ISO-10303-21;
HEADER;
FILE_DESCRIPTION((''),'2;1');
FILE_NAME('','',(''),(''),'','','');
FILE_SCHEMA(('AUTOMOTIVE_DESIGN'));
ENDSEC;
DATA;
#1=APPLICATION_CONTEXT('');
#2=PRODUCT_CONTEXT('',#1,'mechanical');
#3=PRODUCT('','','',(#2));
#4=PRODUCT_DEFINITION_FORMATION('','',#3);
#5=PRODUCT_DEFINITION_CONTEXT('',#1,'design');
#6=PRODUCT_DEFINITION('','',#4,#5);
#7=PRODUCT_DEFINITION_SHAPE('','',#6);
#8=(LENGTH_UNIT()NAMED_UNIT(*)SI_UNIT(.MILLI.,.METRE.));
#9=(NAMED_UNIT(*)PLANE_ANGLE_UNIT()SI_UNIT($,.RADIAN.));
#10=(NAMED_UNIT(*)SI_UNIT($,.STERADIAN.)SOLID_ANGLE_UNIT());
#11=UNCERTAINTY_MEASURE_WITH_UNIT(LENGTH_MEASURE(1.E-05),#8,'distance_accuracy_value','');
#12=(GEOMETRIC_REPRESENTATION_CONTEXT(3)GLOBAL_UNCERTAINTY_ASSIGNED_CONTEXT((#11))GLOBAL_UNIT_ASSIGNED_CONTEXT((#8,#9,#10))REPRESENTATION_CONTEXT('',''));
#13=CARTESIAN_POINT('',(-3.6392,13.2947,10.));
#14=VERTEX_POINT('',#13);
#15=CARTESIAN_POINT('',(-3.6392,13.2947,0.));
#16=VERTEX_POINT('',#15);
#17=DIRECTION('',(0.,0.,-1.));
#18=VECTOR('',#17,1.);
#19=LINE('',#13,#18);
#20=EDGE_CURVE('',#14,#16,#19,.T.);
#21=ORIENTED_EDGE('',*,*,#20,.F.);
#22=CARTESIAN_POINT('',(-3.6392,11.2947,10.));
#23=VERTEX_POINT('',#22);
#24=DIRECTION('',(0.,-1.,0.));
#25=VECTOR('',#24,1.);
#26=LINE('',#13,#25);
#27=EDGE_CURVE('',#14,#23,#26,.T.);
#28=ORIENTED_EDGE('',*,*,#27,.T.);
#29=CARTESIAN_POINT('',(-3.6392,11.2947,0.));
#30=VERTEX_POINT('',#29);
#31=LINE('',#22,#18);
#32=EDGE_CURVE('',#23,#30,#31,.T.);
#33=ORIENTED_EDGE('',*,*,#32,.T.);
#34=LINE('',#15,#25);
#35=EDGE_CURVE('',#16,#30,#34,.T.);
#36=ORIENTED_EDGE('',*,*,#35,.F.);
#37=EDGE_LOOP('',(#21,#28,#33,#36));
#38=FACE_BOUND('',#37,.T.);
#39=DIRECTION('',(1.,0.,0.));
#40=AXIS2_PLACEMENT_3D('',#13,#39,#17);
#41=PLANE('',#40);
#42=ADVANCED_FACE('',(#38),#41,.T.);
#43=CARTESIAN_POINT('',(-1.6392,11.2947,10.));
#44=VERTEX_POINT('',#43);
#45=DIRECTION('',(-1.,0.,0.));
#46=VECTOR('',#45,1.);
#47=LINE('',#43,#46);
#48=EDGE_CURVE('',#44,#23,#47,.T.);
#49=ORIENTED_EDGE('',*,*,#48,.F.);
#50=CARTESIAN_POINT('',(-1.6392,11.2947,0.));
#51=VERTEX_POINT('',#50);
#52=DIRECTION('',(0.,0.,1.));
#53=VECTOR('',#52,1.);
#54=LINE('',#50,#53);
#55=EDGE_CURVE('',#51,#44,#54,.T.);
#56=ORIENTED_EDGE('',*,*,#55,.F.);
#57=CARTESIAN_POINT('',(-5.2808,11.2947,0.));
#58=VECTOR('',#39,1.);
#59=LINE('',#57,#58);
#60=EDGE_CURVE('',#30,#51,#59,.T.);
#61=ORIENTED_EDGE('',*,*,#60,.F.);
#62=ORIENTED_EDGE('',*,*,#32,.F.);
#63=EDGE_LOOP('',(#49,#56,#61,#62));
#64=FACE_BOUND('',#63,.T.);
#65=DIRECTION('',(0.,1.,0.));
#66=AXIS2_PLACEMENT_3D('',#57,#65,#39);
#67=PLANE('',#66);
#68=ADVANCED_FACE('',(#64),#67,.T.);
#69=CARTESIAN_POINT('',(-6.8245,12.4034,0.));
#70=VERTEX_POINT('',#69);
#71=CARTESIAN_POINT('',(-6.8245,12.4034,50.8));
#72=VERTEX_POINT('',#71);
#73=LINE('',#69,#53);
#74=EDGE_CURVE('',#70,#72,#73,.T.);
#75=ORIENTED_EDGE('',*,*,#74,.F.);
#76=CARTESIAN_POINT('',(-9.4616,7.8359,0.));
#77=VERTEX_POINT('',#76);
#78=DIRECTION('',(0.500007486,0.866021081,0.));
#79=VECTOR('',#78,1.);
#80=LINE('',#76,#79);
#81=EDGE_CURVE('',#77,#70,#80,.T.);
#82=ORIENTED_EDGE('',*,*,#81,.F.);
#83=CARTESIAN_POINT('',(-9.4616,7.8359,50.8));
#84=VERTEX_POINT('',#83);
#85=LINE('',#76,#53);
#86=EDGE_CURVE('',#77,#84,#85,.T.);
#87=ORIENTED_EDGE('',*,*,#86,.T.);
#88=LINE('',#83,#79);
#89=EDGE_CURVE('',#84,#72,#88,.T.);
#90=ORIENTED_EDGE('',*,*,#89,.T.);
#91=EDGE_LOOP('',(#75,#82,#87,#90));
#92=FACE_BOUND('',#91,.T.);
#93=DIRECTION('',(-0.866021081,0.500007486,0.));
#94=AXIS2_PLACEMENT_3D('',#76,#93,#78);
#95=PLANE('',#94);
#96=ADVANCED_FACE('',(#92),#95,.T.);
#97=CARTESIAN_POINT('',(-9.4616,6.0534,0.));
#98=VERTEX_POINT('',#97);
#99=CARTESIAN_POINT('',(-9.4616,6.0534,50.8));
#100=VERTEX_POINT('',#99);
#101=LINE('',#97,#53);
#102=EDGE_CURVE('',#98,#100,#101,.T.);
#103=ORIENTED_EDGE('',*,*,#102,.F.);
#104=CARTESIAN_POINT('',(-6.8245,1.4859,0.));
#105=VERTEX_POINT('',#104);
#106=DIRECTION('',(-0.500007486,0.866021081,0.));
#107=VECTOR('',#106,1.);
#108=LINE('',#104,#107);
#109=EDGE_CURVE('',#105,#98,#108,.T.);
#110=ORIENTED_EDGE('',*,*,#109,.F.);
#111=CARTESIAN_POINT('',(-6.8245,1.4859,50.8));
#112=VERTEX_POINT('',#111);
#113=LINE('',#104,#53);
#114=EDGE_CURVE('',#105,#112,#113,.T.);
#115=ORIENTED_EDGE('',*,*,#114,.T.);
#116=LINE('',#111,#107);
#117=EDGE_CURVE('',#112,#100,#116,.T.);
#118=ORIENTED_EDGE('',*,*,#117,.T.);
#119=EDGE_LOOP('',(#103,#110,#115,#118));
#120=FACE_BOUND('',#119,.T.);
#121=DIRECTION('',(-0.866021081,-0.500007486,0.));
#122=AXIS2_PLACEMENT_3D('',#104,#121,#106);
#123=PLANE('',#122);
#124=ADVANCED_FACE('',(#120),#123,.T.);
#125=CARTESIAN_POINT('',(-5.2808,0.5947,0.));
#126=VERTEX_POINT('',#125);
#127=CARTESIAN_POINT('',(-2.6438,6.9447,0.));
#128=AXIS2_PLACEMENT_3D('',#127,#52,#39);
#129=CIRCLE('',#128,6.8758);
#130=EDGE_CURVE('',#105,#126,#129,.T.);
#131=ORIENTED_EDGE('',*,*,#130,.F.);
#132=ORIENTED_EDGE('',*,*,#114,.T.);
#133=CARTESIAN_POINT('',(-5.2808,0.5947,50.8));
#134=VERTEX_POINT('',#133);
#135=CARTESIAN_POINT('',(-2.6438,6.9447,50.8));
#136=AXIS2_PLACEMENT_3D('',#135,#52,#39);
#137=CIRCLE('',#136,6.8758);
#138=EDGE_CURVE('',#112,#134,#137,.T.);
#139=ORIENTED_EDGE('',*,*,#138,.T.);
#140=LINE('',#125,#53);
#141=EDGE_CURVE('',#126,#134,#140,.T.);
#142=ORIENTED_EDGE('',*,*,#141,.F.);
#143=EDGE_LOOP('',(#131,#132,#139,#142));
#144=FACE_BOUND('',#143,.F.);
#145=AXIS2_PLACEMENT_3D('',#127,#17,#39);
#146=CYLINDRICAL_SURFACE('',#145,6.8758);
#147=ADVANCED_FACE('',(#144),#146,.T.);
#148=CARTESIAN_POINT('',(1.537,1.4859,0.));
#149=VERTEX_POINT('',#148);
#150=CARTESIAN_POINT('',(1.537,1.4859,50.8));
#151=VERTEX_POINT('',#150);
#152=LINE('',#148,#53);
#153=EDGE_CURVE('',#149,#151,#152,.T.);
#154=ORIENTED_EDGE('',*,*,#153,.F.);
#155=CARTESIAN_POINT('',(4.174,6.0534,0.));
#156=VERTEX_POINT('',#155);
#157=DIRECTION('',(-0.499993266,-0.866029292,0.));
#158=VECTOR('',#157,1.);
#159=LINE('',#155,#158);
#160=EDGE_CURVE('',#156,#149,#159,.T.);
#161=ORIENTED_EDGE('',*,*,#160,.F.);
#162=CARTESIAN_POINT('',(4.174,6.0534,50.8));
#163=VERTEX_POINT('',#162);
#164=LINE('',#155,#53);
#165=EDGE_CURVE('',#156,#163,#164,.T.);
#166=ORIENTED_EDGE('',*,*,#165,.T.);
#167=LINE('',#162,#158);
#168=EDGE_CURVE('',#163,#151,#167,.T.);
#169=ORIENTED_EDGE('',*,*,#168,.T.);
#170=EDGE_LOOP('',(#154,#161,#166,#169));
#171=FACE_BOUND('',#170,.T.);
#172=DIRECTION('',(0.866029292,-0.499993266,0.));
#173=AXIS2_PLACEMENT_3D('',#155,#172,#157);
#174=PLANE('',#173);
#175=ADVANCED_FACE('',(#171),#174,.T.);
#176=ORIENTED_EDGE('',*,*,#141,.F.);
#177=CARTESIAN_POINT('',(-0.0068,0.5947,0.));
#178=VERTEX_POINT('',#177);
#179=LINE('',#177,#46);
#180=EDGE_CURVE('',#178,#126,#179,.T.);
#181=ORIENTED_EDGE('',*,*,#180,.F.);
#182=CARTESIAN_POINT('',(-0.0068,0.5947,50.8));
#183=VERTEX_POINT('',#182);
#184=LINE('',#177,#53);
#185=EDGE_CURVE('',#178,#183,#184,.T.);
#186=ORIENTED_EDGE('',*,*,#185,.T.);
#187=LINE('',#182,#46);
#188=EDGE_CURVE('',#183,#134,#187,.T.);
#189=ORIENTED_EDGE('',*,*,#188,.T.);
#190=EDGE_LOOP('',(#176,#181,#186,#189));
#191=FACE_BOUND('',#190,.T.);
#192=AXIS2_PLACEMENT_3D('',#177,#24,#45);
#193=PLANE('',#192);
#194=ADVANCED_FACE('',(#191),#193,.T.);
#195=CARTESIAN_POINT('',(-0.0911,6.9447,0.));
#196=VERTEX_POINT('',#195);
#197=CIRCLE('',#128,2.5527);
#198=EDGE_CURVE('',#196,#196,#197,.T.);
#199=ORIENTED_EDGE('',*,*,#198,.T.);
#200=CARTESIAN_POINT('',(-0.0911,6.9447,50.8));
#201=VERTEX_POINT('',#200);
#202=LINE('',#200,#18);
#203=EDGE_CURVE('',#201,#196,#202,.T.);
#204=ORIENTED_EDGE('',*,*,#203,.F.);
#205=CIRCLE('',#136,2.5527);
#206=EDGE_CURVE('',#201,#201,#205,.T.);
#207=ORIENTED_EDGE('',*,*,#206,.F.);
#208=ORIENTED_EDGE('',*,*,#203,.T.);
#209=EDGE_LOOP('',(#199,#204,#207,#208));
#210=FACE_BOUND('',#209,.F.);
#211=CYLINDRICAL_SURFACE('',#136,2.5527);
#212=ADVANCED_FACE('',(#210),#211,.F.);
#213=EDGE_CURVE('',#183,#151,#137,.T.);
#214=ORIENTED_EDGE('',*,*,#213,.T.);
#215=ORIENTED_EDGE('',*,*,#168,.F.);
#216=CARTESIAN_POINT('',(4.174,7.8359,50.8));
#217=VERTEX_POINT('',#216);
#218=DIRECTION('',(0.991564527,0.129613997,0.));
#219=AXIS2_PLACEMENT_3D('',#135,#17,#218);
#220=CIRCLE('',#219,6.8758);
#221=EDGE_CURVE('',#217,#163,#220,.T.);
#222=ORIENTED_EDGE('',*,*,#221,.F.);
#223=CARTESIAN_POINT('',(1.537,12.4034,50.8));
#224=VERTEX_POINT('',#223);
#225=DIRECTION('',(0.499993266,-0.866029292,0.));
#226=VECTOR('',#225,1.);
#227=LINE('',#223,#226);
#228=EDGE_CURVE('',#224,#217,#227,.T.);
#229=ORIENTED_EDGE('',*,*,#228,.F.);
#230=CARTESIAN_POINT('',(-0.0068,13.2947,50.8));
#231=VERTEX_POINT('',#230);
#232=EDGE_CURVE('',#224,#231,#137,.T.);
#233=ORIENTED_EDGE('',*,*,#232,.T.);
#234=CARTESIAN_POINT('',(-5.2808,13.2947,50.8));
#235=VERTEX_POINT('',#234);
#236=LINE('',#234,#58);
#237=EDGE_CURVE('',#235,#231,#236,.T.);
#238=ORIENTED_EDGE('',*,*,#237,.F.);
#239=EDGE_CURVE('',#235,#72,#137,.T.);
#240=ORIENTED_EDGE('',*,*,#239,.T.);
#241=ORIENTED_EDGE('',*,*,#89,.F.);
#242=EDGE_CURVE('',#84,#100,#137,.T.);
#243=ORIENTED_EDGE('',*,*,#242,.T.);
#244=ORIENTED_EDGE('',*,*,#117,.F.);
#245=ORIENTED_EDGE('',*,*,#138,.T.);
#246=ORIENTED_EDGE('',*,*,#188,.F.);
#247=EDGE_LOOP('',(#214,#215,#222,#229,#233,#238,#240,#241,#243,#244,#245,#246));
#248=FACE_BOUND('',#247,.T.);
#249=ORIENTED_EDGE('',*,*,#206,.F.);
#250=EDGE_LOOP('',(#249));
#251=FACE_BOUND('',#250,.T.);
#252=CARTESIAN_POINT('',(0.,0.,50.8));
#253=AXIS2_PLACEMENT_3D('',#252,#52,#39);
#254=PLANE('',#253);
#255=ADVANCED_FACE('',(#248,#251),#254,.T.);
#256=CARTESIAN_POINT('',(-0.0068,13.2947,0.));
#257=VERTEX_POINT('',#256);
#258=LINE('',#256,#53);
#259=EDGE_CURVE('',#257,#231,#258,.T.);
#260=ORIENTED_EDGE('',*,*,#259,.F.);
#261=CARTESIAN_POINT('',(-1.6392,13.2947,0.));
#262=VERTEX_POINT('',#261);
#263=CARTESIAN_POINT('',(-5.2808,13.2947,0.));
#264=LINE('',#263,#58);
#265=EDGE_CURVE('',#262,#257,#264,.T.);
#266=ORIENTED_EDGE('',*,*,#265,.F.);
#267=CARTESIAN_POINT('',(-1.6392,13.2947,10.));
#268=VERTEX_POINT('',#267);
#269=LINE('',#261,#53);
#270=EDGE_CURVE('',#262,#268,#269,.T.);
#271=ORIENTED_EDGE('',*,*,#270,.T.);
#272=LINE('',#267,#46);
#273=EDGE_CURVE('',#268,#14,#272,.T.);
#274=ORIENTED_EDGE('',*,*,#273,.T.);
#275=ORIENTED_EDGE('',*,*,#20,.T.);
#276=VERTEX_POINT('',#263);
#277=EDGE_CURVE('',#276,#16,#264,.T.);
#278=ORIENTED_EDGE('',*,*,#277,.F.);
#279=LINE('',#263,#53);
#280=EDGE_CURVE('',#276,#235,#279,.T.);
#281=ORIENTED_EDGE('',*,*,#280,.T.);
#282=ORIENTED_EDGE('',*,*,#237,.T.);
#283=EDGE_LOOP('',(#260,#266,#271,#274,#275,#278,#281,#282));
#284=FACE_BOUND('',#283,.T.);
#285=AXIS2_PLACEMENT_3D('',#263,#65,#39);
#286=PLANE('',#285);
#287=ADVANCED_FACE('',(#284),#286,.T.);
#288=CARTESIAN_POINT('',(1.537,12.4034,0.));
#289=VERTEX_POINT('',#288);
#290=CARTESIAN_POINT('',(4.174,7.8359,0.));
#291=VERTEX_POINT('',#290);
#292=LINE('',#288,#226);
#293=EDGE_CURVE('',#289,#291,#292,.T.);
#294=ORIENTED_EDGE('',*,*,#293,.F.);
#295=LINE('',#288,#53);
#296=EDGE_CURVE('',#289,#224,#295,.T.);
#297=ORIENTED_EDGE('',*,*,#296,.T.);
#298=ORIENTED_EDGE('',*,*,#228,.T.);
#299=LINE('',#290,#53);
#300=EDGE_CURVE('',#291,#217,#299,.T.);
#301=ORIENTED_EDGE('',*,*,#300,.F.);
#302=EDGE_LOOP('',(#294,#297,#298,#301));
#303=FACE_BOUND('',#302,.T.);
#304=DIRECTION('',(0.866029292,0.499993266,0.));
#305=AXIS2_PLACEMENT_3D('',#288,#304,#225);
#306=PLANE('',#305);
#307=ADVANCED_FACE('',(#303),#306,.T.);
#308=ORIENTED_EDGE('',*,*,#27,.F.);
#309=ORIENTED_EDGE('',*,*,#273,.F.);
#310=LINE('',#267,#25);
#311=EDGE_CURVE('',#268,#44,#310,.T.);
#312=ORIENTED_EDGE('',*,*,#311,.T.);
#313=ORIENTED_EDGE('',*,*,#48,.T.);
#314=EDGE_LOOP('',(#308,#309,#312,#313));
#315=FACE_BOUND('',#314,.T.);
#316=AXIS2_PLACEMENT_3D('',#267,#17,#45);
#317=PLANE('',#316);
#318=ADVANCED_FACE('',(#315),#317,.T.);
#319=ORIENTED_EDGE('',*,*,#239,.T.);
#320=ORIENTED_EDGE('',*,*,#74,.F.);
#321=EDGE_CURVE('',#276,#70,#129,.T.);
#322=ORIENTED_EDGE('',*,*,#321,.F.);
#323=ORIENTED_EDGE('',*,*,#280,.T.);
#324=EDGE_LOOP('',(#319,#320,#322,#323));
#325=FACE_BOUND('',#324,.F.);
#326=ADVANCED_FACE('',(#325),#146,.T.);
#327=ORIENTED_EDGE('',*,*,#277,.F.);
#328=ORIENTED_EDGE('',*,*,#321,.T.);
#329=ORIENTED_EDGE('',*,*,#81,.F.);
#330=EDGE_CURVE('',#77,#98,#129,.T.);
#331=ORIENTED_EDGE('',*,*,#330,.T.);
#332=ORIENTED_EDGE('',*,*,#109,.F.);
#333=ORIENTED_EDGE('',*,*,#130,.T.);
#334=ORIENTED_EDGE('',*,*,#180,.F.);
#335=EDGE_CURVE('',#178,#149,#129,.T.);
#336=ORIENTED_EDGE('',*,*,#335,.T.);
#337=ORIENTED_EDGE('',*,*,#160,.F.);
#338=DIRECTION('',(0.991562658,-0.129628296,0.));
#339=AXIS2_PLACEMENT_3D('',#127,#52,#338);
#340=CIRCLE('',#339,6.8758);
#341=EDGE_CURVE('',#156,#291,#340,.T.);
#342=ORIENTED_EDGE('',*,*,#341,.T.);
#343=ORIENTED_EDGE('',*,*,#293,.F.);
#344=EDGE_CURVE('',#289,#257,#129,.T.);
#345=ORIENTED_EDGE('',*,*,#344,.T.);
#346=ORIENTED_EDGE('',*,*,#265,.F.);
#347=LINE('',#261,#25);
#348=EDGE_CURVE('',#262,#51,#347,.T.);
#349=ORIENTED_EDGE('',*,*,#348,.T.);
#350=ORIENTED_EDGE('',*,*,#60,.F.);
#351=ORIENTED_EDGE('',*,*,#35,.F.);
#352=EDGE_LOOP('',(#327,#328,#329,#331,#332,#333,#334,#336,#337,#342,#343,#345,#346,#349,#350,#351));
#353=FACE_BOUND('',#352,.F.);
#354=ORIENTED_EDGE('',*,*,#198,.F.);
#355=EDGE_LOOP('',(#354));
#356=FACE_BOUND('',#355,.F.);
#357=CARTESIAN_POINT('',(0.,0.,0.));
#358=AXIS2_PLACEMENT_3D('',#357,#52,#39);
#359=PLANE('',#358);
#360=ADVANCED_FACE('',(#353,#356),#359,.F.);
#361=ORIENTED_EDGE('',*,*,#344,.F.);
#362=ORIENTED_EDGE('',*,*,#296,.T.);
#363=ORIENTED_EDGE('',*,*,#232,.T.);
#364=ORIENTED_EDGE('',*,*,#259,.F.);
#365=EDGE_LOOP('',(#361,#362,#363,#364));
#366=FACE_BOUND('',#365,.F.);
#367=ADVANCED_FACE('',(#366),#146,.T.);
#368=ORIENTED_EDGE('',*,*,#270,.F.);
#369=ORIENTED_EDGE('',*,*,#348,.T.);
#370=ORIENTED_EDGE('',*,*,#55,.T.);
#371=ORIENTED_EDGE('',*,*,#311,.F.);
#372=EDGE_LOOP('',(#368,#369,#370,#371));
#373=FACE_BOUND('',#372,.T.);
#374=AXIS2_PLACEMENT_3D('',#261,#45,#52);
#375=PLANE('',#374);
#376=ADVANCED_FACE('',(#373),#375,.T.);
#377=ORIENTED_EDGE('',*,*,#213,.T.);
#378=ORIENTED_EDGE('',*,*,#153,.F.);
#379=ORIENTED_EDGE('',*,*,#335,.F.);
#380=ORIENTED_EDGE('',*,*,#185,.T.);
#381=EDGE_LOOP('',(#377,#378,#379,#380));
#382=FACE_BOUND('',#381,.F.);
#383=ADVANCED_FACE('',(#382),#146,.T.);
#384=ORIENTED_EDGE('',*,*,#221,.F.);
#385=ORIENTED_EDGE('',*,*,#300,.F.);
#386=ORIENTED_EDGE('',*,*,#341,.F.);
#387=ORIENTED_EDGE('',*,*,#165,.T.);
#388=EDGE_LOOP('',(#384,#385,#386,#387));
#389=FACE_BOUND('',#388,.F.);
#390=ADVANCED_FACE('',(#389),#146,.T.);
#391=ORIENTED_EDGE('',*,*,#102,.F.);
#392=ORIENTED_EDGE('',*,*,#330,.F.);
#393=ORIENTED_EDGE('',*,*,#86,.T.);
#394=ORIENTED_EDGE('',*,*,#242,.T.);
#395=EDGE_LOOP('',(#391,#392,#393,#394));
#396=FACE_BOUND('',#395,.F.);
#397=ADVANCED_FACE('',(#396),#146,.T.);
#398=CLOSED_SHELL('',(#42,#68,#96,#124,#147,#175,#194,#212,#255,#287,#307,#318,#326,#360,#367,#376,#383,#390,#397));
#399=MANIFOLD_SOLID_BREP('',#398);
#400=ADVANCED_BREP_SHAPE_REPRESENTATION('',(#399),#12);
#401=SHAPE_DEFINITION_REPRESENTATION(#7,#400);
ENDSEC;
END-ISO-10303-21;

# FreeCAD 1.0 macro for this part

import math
import FreeCAD as App
import Part
import Sketcher
from FreeCAD import Vector
Q = App.Units.Quantity

doc = App.newDocument("Part")
body = doc.addObject("PartDesign::Body", "Body")

sketch1 = doc.addObject("Sketcher::SketchObject", "Sketch")
body.addObject(sketch1)
sketch1.AttachmentSupport = (doc.XY_Plane, [""])
sketch1.MapMode = "FlatFace"
sketch1.addGeometry([
    Part.ArcOfCircle(Part.Circle(Vector(-2.6, 6.9, 0), Vector(0, 0, 1), 6.9), math.radians(-7.45), math.radians(7.45)),
    Part.LineSegment(Vector(4.2, 7.8, 0), Vector(1.5, 12.4, 0)),
    Part.ArcOfCircle(Part.Circle(Vector(-2.6, 6.9, 0), Vector(0, 0, 1), 6.9), math.radians(52.55), math.radians(67.45)),
    Part.LineSegment(Vector(0, 13.3, 0), Vector(-5.3, 13.3, 0)),
    Part.ArcOfCircle(Part.Circle(Vector(-2.6, 6.9, 0), Vector(0, 0, 1), 6.9), math.radians(112.55), math.radians(127.45)),
    Part.LineSegment(Vector(-6.8, 12.4, 0), Vector(-9.5, 7.8, 0)),
    Part.ArcOfCircle(Part.Circle(Vector(-2.6, 6.9, 0), Vector(0, 0, 1), 6.9), math.radians(172.55), math.radians(187.45)),
    Part.LineSegment(Vector(-9.5, 6.1, 0), Vector(-6.8, 1.5, 0)),
    Part.ArcOfCircle(Part.Circle(Vector(-2.6, 6.9, 0), Vector(0, 0, 1), 6.9), math.radians(-127.45), math.radians(-112.55)),
    Part.LineSegment(Vector(-5.3, 0.6, 0), Vector(0, 0.6, 0)),
    Part.ArcOfCircle(Part.Circle(Vector(-2.6, 6.9, 0), Vector(0, 0, 1), 6.9), math.radians(-67.45), math.radians(-52.55)),
    Part.LineSegment(Vector(1.5, 1.5, 0), Vector(4.2, 6.1, 0)),
], False)
sketch1.addConstraint([
    Sketcher.Constraint("Coincident", 0, 2, 1, 1),
    Sketcher.Constraint("Coincident", 1, 2, 2, 1),
    Sketcher.Constraint("Coincident", 2, 2, 3, 1),
    Sketcher.Constraint("Coincident", 3, 2, 4, 1),
    Sketcher.Constraint("Coincident", 4, 2, 5, 1),
    Sketcher.Constraint("Coincident", 5, 2, 6, 1),
    Sketcher.Constraint("Coincident", 6, 2, 7, 1),
    Sketcher.Constraint("Coincident", 7, 2, 8, 1),
    Sketcher.Constraint("Coincident", 8, 2, 9, 1),
    Sketcher.Constraint("Coincident", 9, 2, 10, 1),
    Sketcher.Constraint("Coincident", 10, 2, 11, 1),
    Sketcher.Constraint("Coincident", 11, 2, 0, 1),
    Sketcher.Constraint("Horizontal", 3),
    Sketcher.Constraint("Horizontal", 9),
    Sketcher.Constraint("Coincident", 2, 3, 0, 3),
    Sketcher.Constraint("Coincident", 4, 3, 0, 3),
    Sketcher.Constraint("Coincident", 6, 3, 0, 3),
    Sketcher.Constraint("Coincident", 8, 3, 0, 3),
    Sketcher.Constraint("Coincident", 10, 3, 0, 3),
    Sketcher.Constraint("Equal", 0, 2),
    Sketcher.Constraint("Equal", 2, 4),
    Sketcher.Constraint("Equal", 4, 6),
    Sketcher.Constraint("Equal", 6, 8),
    Sketcher.Constraint("Equal", 8, 10),
    Sketcher.Constraint("Parallel", 1, 7),
    Sketcher.Constraint("Parallel", 5, 11),
    Sketcher.Constraint("Horizontal", 1, 2, 4, 2),
    Sketcher.Constraint("Horizontal", 0, 2, 5, 2),
    Sketcher.Constraint("Horizontal", 7, 2, 10, 2),
    Sketcher.Constraint("Vertical", 5, 2, 6, 2),
    Sketcher.Constraint("Vertical", 3, 2, 8, 2),
    Sketcher.Constraint("Radius", 0, Q("0.2707 in")),
    Sketcher.Constraint("Angle", 1, Q("119.9996 deg")),
    Sketcher.Constraint("DistanceY", 0, 3, 2, 2, Q("0.25 in")),
    Sketcher.Constraint("DistanceY", 10, 2, 0, 2, Q("0.25 in")),
    Sketcher.Constraint("DistanceY", -1, 1, 0, 2, Q("0.3085 in")),
    Sketcher.Constraint("DistanceX", -1, 1, 1, 2, Q("0.0605 in")),
])
pad1 = doc.addObject("PartDesign::Pad", "Pad")
body.addObject(pad1)
pad1.Profile = sketch1
pad1.Length = Q("2 in")

sketch2 = doc.addObject("Sketcher::SketchObject", "Sketch001")
body.addObject(sketch2)
sketch2.AttachmentSupport = (doc.XY_Plane, [""])
sketch2.MapMode = "FlatFace"
sketch2.AttachmentOffset = App.Placement(Vector(0, 0, 2 * 25.4), App.Rotation())
sketch2.addGeometry(Part.Circle(Vector(-2.6, 6.9, 0), Vector(0, 0, 1), 2.6), False)
sketch2.addConstraint([
    Sketcher.Constraint("Diameter", 0, Q("0.201 in")),
    Sketcher.Constraint("DistanceX", 0, 3, -1, 1, 2.6438),
    Sketcher.Constraint("DistanceY", -1, 1, 0, 3, 6.9447),
])
pocket1 = doc.addObject("PartDesign::Pocket", "Pocket")
body.addObject(pocket1)
pocket1.Profile = sketch2
pocket1.Length = Q("2 in")

sketch3 = doc.addObject("Sketcher::SketchObject", "Sketch002")
body.addObject(sketch3)
sketch3.AttachmentSupport = (doc.XZ_Plane, [""])
sketch3.MapMode = "FlatFace"
sketch3.AttachmentOffset = App.Placement(Vector(0, 0, -13.2947), App.Rotation())
sketch3.addGeometry([
    Part.LineSegment(Vector(-1.6, 0, 0), Vector(-3.6, 0, 0)),
    Part.LineSegment(Vector(-3.6, 0, 0), Vector(-3.6, 10, 0)),
    Part.LineSegment(Vector(-3.6, 10, 0), Vector(-1.6, 10, 0)),
    Part.LineSegment(Vector(-1.6, 10, 0), Vector(-1.6, 0, 0)),
], False)
sketch3.addConstraint([
    Sketcher.Constraint("Coincident", 0, 2, 1, 1),
    Sketcher.Constraint("Coincident", 1, 2, 2, 1),
    Sketcher.Constraint("Coincident", 2, 2, 3, 1),
    Sketcher.Constraint("Coincident", 3, 2, 0, 1),
    Sketcher.Constraint("Horizontal", 0),
    Sketcher.Constraint("Vertical", 1),
    Sketcher.Constraint("Horizontal", 2),
    Sketcher.Constraint("Vertical", 3),
    Sketcher.Constraint("PointOnObject", 0, 2, -1),
    Sketcher.Constraint("DistanceY", 1, 1, 1, 2, Q("0.3937 in")),
    Sketcher.Constraint("DistanceX", 0, 2, 0, 1, 2.0),
    Sketcher.Constraint("DistanceX", 0, 2, -1, 1, 3.6392),
])
pocket2 = doc.addObject("PartDesign::Pocket", "Pocket001")
body.addObject(pocket2)
pocket2.Profile = sketch3
pocket2.Length = 2
pocket2.Reversed = True

doc.recompute()
